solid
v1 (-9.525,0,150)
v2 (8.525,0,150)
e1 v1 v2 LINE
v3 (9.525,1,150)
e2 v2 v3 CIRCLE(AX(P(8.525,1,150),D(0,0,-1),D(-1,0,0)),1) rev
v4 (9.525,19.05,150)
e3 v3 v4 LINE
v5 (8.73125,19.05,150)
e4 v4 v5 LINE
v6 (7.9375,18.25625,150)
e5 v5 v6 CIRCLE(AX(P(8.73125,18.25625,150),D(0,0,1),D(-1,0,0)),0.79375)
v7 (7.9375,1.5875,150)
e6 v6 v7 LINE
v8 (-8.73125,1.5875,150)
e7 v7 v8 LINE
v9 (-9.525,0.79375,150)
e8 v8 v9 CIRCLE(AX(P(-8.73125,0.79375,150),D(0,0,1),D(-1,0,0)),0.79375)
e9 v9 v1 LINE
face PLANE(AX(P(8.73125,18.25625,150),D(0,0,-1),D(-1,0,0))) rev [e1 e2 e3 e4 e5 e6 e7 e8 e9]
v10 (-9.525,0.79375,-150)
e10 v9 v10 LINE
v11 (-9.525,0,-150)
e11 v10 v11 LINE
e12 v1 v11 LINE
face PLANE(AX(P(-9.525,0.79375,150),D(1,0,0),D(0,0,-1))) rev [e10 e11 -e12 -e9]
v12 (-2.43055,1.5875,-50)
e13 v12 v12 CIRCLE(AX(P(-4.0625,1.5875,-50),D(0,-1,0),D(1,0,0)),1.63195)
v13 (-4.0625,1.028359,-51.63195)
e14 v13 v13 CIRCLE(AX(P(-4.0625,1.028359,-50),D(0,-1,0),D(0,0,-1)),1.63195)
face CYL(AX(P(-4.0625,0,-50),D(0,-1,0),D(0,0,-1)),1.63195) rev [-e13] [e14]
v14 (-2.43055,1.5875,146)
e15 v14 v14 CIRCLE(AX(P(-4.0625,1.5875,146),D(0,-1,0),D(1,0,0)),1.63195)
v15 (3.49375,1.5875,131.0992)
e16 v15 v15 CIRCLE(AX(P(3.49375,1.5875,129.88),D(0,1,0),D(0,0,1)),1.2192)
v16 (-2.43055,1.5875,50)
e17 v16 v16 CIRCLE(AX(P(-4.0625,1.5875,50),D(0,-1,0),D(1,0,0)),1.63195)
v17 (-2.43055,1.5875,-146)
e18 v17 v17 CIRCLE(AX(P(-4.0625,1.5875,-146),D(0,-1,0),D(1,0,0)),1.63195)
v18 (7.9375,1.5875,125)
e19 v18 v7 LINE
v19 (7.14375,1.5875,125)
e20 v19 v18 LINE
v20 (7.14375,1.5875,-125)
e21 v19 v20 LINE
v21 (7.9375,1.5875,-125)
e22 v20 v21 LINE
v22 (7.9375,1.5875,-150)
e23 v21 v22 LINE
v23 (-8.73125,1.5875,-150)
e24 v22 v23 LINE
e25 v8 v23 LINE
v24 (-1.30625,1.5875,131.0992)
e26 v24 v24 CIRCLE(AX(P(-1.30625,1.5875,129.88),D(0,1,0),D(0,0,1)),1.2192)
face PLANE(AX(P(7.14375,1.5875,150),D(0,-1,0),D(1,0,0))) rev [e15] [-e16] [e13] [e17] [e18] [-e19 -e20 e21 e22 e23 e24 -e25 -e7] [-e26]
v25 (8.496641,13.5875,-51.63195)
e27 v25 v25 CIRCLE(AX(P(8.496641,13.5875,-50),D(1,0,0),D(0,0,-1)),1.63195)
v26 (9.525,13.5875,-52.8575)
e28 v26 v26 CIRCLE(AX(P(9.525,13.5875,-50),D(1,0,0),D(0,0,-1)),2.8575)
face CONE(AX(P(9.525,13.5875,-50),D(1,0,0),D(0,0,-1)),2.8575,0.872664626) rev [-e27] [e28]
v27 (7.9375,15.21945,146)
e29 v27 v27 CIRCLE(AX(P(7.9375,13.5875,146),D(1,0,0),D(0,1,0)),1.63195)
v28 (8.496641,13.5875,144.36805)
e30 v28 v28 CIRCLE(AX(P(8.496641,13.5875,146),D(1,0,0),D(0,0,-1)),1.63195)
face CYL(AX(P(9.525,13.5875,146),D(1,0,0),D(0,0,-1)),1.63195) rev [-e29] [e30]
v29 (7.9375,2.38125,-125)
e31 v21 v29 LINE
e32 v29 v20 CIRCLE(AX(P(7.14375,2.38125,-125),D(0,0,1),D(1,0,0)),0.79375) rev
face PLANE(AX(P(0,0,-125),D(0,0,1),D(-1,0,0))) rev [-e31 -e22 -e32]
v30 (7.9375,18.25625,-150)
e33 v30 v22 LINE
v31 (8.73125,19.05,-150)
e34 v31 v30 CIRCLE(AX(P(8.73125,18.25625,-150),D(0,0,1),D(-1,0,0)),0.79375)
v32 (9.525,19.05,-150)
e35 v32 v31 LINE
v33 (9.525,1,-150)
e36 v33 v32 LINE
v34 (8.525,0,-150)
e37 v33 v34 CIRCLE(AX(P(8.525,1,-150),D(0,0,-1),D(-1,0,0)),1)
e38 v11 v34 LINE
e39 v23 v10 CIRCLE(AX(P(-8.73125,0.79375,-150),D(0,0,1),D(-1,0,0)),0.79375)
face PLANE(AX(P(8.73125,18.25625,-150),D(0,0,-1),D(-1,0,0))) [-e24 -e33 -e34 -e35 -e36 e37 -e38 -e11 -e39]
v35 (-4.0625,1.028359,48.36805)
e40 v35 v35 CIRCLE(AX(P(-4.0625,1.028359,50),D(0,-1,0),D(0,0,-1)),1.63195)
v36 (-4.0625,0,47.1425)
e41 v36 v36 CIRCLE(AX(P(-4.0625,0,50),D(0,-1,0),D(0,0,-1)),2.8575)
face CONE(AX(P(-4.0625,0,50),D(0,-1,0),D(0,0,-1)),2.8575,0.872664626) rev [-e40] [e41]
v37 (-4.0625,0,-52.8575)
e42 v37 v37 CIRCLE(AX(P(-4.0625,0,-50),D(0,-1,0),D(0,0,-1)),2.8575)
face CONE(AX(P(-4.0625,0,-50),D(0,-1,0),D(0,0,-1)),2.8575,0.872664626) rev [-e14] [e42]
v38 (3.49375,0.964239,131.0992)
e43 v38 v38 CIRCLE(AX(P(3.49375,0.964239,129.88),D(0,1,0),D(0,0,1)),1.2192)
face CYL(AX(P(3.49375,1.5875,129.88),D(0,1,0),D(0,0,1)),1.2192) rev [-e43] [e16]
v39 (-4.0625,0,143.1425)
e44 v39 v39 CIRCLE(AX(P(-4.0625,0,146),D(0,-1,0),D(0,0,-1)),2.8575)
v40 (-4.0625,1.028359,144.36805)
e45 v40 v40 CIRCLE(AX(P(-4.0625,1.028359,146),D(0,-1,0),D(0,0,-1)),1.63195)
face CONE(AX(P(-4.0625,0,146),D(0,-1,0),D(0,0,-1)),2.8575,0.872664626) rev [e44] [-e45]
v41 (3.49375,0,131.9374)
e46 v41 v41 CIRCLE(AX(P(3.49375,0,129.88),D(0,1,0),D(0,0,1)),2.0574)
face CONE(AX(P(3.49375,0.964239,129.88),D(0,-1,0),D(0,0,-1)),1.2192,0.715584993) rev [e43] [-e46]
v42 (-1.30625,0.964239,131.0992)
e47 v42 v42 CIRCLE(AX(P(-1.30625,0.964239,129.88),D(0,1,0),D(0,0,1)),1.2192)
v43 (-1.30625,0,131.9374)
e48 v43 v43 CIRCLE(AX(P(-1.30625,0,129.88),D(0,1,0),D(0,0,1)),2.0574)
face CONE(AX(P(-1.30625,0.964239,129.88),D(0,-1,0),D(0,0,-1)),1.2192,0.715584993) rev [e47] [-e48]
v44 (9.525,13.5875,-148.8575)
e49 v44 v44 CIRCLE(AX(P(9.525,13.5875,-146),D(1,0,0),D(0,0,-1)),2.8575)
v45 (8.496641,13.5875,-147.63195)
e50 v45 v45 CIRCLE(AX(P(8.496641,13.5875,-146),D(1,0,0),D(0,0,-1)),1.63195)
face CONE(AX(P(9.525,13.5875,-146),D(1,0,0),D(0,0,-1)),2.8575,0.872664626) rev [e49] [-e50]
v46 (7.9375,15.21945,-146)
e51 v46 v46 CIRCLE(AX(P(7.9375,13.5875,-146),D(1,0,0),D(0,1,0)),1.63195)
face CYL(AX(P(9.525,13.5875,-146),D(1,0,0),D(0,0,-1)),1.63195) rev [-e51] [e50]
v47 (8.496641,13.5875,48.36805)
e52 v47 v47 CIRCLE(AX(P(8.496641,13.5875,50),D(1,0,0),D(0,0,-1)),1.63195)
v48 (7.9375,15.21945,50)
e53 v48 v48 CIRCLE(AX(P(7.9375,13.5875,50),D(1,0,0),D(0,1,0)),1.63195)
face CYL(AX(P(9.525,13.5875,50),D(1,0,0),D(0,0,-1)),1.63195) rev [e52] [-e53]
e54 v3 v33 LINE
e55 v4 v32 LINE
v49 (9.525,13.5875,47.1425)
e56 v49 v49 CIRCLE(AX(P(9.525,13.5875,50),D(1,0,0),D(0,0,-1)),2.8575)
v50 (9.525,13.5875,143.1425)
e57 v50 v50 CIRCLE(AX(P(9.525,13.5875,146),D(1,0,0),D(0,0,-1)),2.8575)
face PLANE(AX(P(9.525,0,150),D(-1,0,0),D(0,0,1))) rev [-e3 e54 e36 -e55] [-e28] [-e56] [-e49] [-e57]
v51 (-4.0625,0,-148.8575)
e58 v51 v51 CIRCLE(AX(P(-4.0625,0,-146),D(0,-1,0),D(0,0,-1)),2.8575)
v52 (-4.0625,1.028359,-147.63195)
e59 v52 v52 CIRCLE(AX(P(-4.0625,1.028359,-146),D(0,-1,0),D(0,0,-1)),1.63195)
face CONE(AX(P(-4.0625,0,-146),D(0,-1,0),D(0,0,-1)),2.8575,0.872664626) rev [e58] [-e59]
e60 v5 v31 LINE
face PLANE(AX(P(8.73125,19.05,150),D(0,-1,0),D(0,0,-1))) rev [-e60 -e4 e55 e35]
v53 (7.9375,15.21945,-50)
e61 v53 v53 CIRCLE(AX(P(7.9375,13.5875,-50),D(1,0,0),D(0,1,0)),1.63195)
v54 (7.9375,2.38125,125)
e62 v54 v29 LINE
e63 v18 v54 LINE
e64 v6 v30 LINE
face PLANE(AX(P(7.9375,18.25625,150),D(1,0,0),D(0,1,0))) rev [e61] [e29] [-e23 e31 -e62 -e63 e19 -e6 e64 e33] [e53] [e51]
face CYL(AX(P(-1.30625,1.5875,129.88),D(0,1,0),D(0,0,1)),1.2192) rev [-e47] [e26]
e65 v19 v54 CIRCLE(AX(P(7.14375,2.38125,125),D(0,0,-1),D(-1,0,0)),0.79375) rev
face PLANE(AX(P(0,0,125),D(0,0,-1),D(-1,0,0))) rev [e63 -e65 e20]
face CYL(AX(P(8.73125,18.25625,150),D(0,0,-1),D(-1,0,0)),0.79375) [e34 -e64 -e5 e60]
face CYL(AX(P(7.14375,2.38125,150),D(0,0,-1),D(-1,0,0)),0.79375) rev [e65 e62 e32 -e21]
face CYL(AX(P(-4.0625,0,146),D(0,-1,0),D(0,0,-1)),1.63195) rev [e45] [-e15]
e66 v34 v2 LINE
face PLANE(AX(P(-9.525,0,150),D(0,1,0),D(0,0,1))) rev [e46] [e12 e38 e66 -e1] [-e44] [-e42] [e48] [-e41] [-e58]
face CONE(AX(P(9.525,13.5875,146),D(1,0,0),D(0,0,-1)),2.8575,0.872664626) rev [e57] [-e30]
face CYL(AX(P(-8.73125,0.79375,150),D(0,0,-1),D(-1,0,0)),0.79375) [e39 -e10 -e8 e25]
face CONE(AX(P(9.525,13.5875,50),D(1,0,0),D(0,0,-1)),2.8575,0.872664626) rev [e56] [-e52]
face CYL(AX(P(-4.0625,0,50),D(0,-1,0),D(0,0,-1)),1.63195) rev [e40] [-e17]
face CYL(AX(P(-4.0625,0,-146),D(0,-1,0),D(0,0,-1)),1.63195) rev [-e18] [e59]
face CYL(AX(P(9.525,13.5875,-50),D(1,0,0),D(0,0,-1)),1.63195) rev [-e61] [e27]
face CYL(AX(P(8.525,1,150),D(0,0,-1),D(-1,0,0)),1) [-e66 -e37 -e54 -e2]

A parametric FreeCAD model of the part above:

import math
import FreeCAD as App
import Part
import Sketcher

V = App.Vector
Q = App.Units.Quantity


def edges_at(feature, points):
    """Names of the edges that pass closest to the given points."""
    edges = feature.Shape.Edges
    near = lambda p: min(range(len(edges)), key=lambda i: edges[i].distToShape(Part.Vertex(*p))[0])
    return sorted({f"Edge{near(p) + 1}" for p in points})

doc = App.newDocument("Part")
body = doc.addObject("PartDesign::Body", "Body")

sketch1 = body.newObject("Sketcher::SketchObject", "Sketch")
sketch1.AttachmentSupport = (doc.getObject("XY_Plane"), [""])
sketch1.MapMode = "FlatFace"
sketch1.addGeometry(Part.LineSegment(V(-9.525, 0, 0), V(9.525, 0, 0)), False)
sketch1.addGeometry(Part.LineSegment(V(9.525, 0, 0), V(9.525, 19.05, 0)), False)
sketch1.addGeometry(Part.LineSegment(V(9.525, 19.05, 0), V(8.73125, 19.05, 0)), False)
sketch1.addGeometry(Part.ArcOfCircle(Part.Circle(V(8.73125, 18.25625, 0), V(0, 0, 1), 0.79375), math.radians(90), math.radians(180)), False)
sketch1.addGeometry(Part.LineSegment(V(7.9375, 18.25625, 0), V(7.9375, 2.38125, 0)), False)
sketch1.addGeometry(Part.ArcOfCircle(Part.Circle(V(7.14375, 2.38125, 0), V(0, 0, 1), 0.79375), math.radians(-90), math.radians(0)), False)
sketch1.addGeometry(Part.LineSegment(V(7.14375, 1.5875, 0), V(-8.73125, 1.5875, 0)), False)
sketch1.addGeometry(Part.ArcOfCircle(Part.Circle(V(-8.73125, 0.79375, 0), V(0, 0, 1), 0.79375), math.radians(90), math.radians(180)), False)
sketch1.addGeometry(Part.LineSegment(V(-9.525, 0.79375, 0), V(-9.525, 0, 0)), False)
sketch1.addConstraint(Sketcher.Constraint("Coincident", 0, 2, 1, 1))
sketch1.addConstraint(Sketcher.Constraint("Coincident", 1, 2, 2, 1))
sketch1.addConstraint(Sketcher.Constraint("Tangent", 2, 2, 3, 1))
sketch1.addConstraint(Sketcher.Constraint("Tangent", 3, 2, 4, 1))
sketch1.addConstraint(Sketcher.Constraint("Tangent", 4, 2, 5, 2))
sketch1.addConstraint(Sketcher.Constraint("Tangent", 5, 1, 6, 1))
sketch1.addConstraint(Sketcher.Constraint("Tangent", 6, 2, 7, 1))
sketch1.addConstraint(Sketcher.Constraint("Tangent", 7, 2, 8, 1))
sketch1.addConstraint(Sketcher.Constraint("Coincident", 8, 2, 0, 1))
sketch1.addConstraint(Sketcher.Constraint("Horizontal", 0))
sketch1.addConstraint(Sketcher.Constraint("Vertical", 1))
sketch1.addConstraint(Sketcher.Constraint("Horizontal", 2))
sketch1.addConstraint(Sketcher.Constraint("Vertical", 4))
sketch1.addConstraint(Sketcher.Constraint("Horizontal", 6))
sketch1.addConstraint(Sketcher.Constraint("Vertical", 8))
sketch1.addConstraint(Sketcher.Constraint("Equal", 3, 5))
sketch1.addConstraint(Sketcher.Constraint("Equal", 5, 7))
sketch1.addConstraint(Sketcher.Constraint("Symmetric", 0, 2, 8, 2, -1, 1))
sketch1.addConstraint(Sketcher.Constraint("Equal", 0, 1))
sketch1.addConstraint(Sketcher.Constraint("Equal", 6, 4))
sketch1.addConstraint(Sketcher.Constraint("Radius", 3, Q("0.03125 in")))
sketch1.addConstraint(Sketcher.Constraint("DistanceX", 0, 1, 0, 2, Q("0.75 in")))
sketch1.addConstraint(Sketcher.Constraint("DistanceX", 2, 2, 2, 1, Q("0.03125 in")))
pad1 = body.newObject("PartDesign::Pad", "Pad")
pad1.Profile = sketch1
pad1.Length = 300
pad1.Midplane = True

sketch2 = body.newObject("Sketcher::SketchObject", "Sketch001")
sketch2.AttachmentSupport = (doc.getObject("XZ_Plane"), [""])
sketch2.MapMode = "FlatFace"
sketch2.addGeometry(Part.Circle(V(-4.0625, 146, 0), V(0, 0, 1), 1.63195), False)
sketch2.addGeometry(Part.Circle(V(-4.0625, -146, 0), V(0, 0, 1), 1.63195), False)
sketch2.addConstraint(Sketcher.Constraint("Equal", 0, 1))
sketch2.addConstraint(Sketcher.Constraint("Symmetric", 0, 3, 1, 3, -1))
sketch2.addConstraint(Sketcher.Constraint("Diameter", 0, Q("0.1285 in")))
sketch2.addConstraint(Sketcher.Constraint("DistanceX", 0, 3, -1, 1, Q("4.0625 mm")))
sketch2.addConstraint(Sketcher.Constraint("DistanceY", -1, 1, 0, 3, Q("146 mm")))
doc.recompute()
hole = body.newObject("PartDesign::Hole", "Hole")
hole.Profile = sketch2
hole.ThreadType = "None"
hole.Diameter = Q("0.1285 in")
hole.DepthType = "ThroughAll"
hole.HoleCutType = "Countersink"
hole.HoleCutDiameter = Q("0.225 in")
hole.HoleCutCountersinkAngle = 100

sketch3 = body.newObject("Sketcher::SketchObject", "Sketch002")
sketch3.AttachmentSupport = (doc.getObject("YZ_Plane"), [""])
sketch3.MapMode = "FlatFace"
sketch3.AttachmentOffset = App.Placement(V(0, 0, 0.375 * 25.4), App.Rotation())
sketch3.addGeometry(Part.Circle(V(13.5875, 146, 0), V(0, 0, 1), 1.63195), False)
sketch3.addGeometry(Part.Circle(V(13.5875, -146, 0), V(0, 0, 1), 1.63195), False)
sketch3.addConstraint(Sketcher.Constraint("Equal", 0, 1))
sketch3.addConstraint(Sketcher.Constraint("Symmetric", 0, 3, 1, 3, -1))
sketch3.addConstraint(Sketcher.Constraint("Diameter", 0, Q("0.1285 in")))
sketch3.addConstraint(Sketcher.Constraint("DistanceX", -1, 1, 0, 3, Q("13.5875 mm")))
sketch3.addConstraint(Sketcher.Constraint("DistanceY", -1, 1, 0, 3, Q("146 mm")))
doc.recompute()
hole2 = body.newObject("PartDesign::Hole", "Hole001")
hole2.Profile = sketch3
hole2.ThreadType = "None"
hole2.Diameter = Q("0.1285 in")
hole2.DepthType = "ThroughAll"
hole2.HoleCutType = "Countersink"
hole2.HoleCutDiameter = Q("0.225 in")
hole2.HoleCutCountersinkAngle = 100
doc.recompute()

fillet = body.newObject("PartDesign::Fillet", "Fillet")
fillet.Base = (hole2, edges_at(hole2, [(9.525, 0, 0)]))
fillet.Radius = 1

sketch4 = body.newObject("Sketcher::SketchObject", "Sketch003")
sketch4.AttachmentSupport = (doc.getObject("YZ_Plane"), [""])
sketch4.MapMode = "FlatFace"
sketch4.AttachmentOffset = App.Placement(V(0, 0, 3.49375), App.Rotation())
sketch4.addGeometry(Part.LineSegment(V(0, 129.88, 0), V(1.5875, 129.88, 0)), False)
sketch4.addGeometry(Part.LineSegment(V(1.5875, 129.88, 0), V(1.5875, 131.0992, 0)), False)
sketch4.addGeometry(Part.LineSegment(V(1.5875, 131.0992, 0), V(0.964239, 131.0992, 0)), False)
sketch4.addGeometry(Part.LineSegment(V(0.964239, 131.0992, 0), V(0, 131.9374, 0)), False)
sketch4.addGeometry(Part.LineSegment(V(0, 131.9374, 0), V(0, 129.88, 0)), False)
sketch4.addGeometry(Part.LineSegment(V(1.5875, 129.88, 0), V(0, 129.88, 0)), True)
sketch4.addConstraint(Sketcher.Constraint("Coincident", 0, 2, 1, 1))
sketch4.addConstraint(Sketcher.Constraint("Coincident", 1, 2, 2, 1))
sketch4.addConstraint(Sketcher.Constraint("Coincident", 2, 2, 3, 1))
sketch4.addConstraint(Sketcher.Constraint("Coincident", 3, 2, 4, 1))
sketch4.addConstraint(Sketcher.Constraint("Coincident", 4, 2, 0, 1))
sketch4.addConstraint(Sketcher.Constraint("Horizontal", 0))
sketch4.addConstraint(Sketcher.Constraint("Vertical", 1))
sketch4.addConstraint(Sketcher.Constraint("Horizontal", 2))
sketch4.addConstraint(Sketcher.Constraint("Vertical", 4))
sketch4.addConstraint(Sketcher.Constraint("Horizontal", 5))
sketch4.addConstraint(Sketcher.Constraint("Coincident", 5, 1, 0, 2))
sketch4.addConstraint(Sketcher.Constraint("PointOnObject", 3, 2, -2))
sketch4.addConstraint(Sketcher.Constraint("PointOnObject", 5, 2, -2))
sketch4.addConstraint(Sketcher.Constraint("Angle", 3, Q("139 deg")))
sketch4.addConstraint(Sketcher.Constraint("DistanceX", 0, 1, 0, 2, Q("0.0625 in")))
sketch4.addConstraint(Sketcher.Constraint("DistanceY", 1, 1, 1, 2, Q("0.048 in")))
sketch4.addConstraint(Sketcher.Constraint("DistanceY", 4, 2, 4, 1, Q("0.081 in")))
sketch4.addConstraint(Sketcher.Constraint("DistanceY", -1, 1, 0, 2, Q("129.88 mm")))
groove = body.newObject("PartDesign::Groove", "Groove")
groove.Profile = sketch4
groove.ReferenceAxis = (sketch4, ["Axis0"])
groove.Angle = 360
doc.recompute()

linearpattern = body.newObject("PartDesign::LinearPattern", "LinearPattern")
linearpattern.Originals = [groove]
linearpattern.Direction = (doc.getObject("X_Axis"), [""])
linearpattern.Mode = "offset"
linearpattern.Offset = 4.8
linearpattern.Occurrences = 2
linearpattern.Reversed = True
body.Tip = linearpattern

sketch5 = body.newObject("Sketcher::SketchObject", "Sketch004")
sketch5.AttachmentSupport = (doc.getObject("XZ_Plane"), [""])
sketch5.MapMode = "FlatFace"
sketch5.addGeometry(Part.Circle(V(-4.0625, -50, 0), V(0, 0, 1), 1.63195), False)
sketch5.addConstraint(Sketcher.Constraint("Diameter", 0, Q("0.1285 in")))
sketch5.addConstraint(Sketcher.Constraint("DistanceX", 0, 3, -1, 1, Q("4.0625 mm")))
sketch5.addConstraint(Sketcher.Constraint("DistanceY", 0, 3, -1, 1, Q("50 mm")))
doc.recompute()
hole3 = body.newObject("PartDesign::Hole", "Hole002")
hole3.Profile = sketch5
hole3.ThreadType = "None"
hole3.Diameter = Q("0.1285 in")
hole3.DepthType = "ThroughAll"
hole3.HoleCutType = "Countersink"
hole3.HoleCutDiameter = Q("0.225 in")
hole3.HoleCutCountersinkAngle = 100

sketch6 = body.newObject("Sketcher::SketchObject", "Sketch005")
sketch6.AttachmentSupport = (doc.getObject("YZ_Plane"), [""])
sketch6.MapMode = "FlatFace"
sketch6.AttachmentOffset = App.Placement(V(0, 0, 0.375 * 25.4), App.Rotation())
sketch6.addGeometry(Part.Circle(V(13.5875, -50, 0), V(0, 0, 1), 1.63195), False)
sketch6.addConstraint(Sketcher.Constraint("Diameter", 0, Q("0.1285 in")))
sketch6.addConstraint(Sketcher.Constraint("DistanceX", -1, 1, 0, 3, Q("13.5875 mm")))
sketch6.addConstraint(Sketcher.Constraint("DistanceY", 0, 3, -1, 1, Q("50 mm")))
doc.recompute()
hole4 = body.newObject("PartDesign::Hole", "Hole003")
hole4.Profile = sketch6
hole4.ThreadType = "None"
hole4.Diameter = Q("0.1285 in")
hole4.DepthType = "ThroughAll"
hole4.HoleCutType = "Countersink"
hole4.HoleCutDiameter = Q("0.225 in")
hole4.HoleCutCountersinkAngle = 100

sketch7 = body.newObject("Sketcher::SketchObject", "Sketch006")
sketch7.AttachmentSupport = (doc.getObject("YZ_Plane"), [""])
sketch7.MapMode = "FlatFace"
sketch7.AttachmentOffset = App.Placement(V(0, 0, 0.375 * 25.4), App.Rotation())
sketch7.addGeometry(Part.Circle(V(13.5875, 50, 0), V(0, 0, 1), 1.63195), False)
sketch7.addConstraint(Sketcher.Constraint("Diameter", 0, Q("0.1285 in")))
sketch7.addConstraint(Sketcher.Constraint("DistanceX", -1, 1, 0, 3, Q("13.5875 mm")))
sketch7.addConstraint(Sketcher.Constraint("DistanceY", -1, 1, 0, 3, Q("50 mm")))
doc.recompute()
hole5 = body.newObject("PartDesign::Hole", "Hole004")
hole5.Profile = sketch7
hole5.ThreadType = "None"
hole5.Diameter = Q("0.1285 in")
hole5.DepthType = "ThroughAll"
hole5.HoleCutType = "Countersink"
hole5.HoleCutDiameter = Q("0.225 in")
hole5.HoleCutCountersinkAngle = 100

sketch8 = body.newObject("Sketcher::SketchObject", "Sketch007")
sketch8.AttachmentSupport = (doc.getObject("XZ_Plane"), [""])
sketch8.MapMode = "FlatFace"
sketch8.addGeometry(Part.Circle(V(-4.0625, 50, 0), V(0, 0, 1), 1.63195), False)
sketch8.addConstraint(Sketcher.Constraint("Diameter", 0, Q("0.1285 in")))
sketch8.addConstraint(Sketcher.Constraint("DistanceX", 0, 3, -1, 1, Q("4.0625 mm")))
sketch8.addConstraint(Sketcher.Constraint("DistanceY", -1, 1, 0, 3, Q("50 mm")))
doc.recompute()
hole6 = body.newObject("PartDesign::Hole", "Hole005")
hole6.Profile = sketch8
hole6.ThreadType = "None"
hole6.Diameter = Q("0.1285 in")
hole6.DepthType = "ThroughAll"
hole6.HoleCutType = "Countersink"
hole6.HoleCutDiameter = Q("0.225 in")
hole6.HoleCutCountersinkAngle = 100

sketch9 = body.newObject("Sketcher::SketchObject", "Sketch008")
sketch9.AttachmentSupport = (doc.getObject("XY_Plane"), [""])
sketch9.MapMode = "FlatFace"
sketch9.AttachmentOffset = App.Placement(V(0, 0, 150), App.Rotation())
sketch9.addGeometry(Part.LineSegment(V(7.9375, 1.5875, 0), V(7.9375, 6.5875, 0)), False)
sketch9.addGeometry(Part.LineSegment(V(7.9375, 6.5875, 0), V(2.9375, 1.5875, 0)), False)
sketch9.addGeometry(Part.LineSegment(V(2.9375, 1.5875, 0), V(7.9375, 1.5875, 0)), False)
sketch9.addConstraint(Sketcher.Constraint("Coincident", 0, 2, 1, 1))
sketch9.addConstraint(Sketcher.Constraint("Coincident", 1, 2, 2, 1))
sketch9.addConstraint(Sketcher.Constraint("Coincident", 2, 2, 0, 1))
sketch9.addConstraint(Sketcher.Constraint("Vertical", 0))
sketch9.addConstraint(Sketcher.Constraint("Horizontal", 2))
sketch9.addConstraint(Sketcher.Constraint("Equal", 2, 0))
sketch9.addConstraint(Sketcher.Constraint("DistanceX", -1, 1, 0, 2, Q("0.3125 in")))
sketch9.addConstraint(Sketcher.Constraint("DistanceY", -1, 1, 1, 2, Q("0.0625 in")))
sketch9.addConstraint(Sketcher.Constraint("DistanceX", 2, 1, 2, 2, Q("5 mm")))
pocket1 = body.newObject("PartDesign::Pocket", "Pocket")
pocket1.Profile = sketch9
pocket1.Length = 25
doc.recompute()

mirrored = body.newObject("PartDesign::Mirrored", "Mirrored")
mirrored.Originals = [pocket1]
mirrored.MirrorPlane = (doc.getObject("XY_Plane"), [""])
body.Tip = mirrored

doc.recompute()
